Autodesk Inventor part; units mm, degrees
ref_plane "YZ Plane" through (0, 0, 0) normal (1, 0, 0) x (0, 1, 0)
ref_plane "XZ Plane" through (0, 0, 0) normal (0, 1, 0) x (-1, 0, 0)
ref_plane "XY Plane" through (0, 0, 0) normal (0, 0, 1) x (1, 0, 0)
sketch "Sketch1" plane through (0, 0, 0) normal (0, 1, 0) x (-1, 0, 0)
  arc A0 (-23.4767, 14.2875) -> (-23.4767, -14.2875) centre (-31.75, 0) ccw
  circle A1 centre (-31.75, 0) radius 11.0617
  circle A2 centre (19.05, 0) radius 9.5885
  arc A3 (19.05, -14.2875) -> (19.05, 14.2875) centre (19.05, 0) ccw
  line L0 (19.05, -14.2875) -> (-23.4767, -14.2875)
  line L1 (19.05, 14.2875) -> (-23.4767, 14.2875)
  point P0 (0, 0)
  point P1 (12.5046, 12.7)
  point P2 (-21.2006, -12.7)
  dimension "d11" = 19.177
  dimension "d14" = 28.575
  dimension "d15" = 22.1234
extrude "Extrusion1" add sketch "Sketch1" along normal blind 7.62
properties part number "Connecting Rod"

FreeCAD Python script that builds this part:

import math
import FreeCAD as App
import Part
import Sketcher

V = App.Vector
Q = App.Units.Quantity

doc = App.newDocument("Part")
params = doc.addObject("Spreadsheet::Sheet", "Params")
for row, (alias, value) in enumerate([
    ("sketch1_diameter", "0.871 in"),
    ("sketch1_diameter2", "0.755 in"),
    ("sketch1_radius", "0.5625 in"),
    ("sketch1_radius2", "0.65 in"),
    ("pad1_length", "0.3 in"),
], start=1):
    params.set(f"A{row}", alias)
    params.set(f"B{row}", "=" + value)
    params.setAlias(f"B{row}", alias)

body = doc.addObject("PartDesign::Body", "Body")

# Sketch on XZ plane
sketch1 = doc.addObject("Sketcher::SketchObject", "Sketch")
body.addObject(sketch1)
sketch1.AttachmentSupport = (doc.XZ_Plane, [""])
sketch1.MapMode = "FlatFace"
sketch1.addGeometry(Part.LineSegment(V(-19, 14, 0), V(23, 14, 0)), False)
sketch1.addGeometry(Part.ArcOfCircle(Part.Circle(V(32, 0, 0), V(0, 0, 1), 17), math.radians(-120), math.radians(120)), False)
sketch1.addGeometry(Part.LineSegment(V(23, -14, 0), V(-19, -14, 0)), False)
sketch1.addGeometry(Part.ArcOfCircle(Part.Circle(V(-19, 0, 0), V(0, 0, 1), 14), math.radians(90), math.radians(270)), False)
sketch1.addGeometry(Part.Circle(V(32, 0, 0), V(0, 0, 1), 11), False)
sketch1.addGeometry(Part.Circle(V(-19, 0, 0), V(0, 0, 1), 10), False)
sketch1.addConstraint(Sketcher.Constraint("Coincident", 0, 2, 1, 2))
sketch1.addConstraint(Sketcher.Constraint("Coincident", 1, 1, 2, 1))
sketch1.addConstraint(Sketcher.Constraint("Tangent", 2, 2, 3, 2))
sketch1.addConstraint(Sketcher.Constraint("Tangent", 3, 1, 0, 1))
sketch1.addConstraint(Sketcher.Constraint("Horizontal", 0))
sketch1.addConstraint(Sketcher.Constraint("Horizontal", 2))
sketch1.addConstraint(Sketcher.Constraint("Coincident", 4, 3, 1, 3))
sketch1.addConstraint(Sketcher.Constraint("Coincident", 5, 3, 3, 3))
sketch1.addConstraint(Sketcher.Constraint("Symmetric", 0, 2, 1, 1, -1))
sketch1.addConstraint(Sketcher.Constraint("Diameter", 4, Q("0.871 in")))
sketch1.addConstraint(Sketcher.Constraint("Diameter", 5, Q("0.755 in")))
sketch1.addConstraint(Sketcher.Constraint("Radius", 3, Q("0.5625 in")))
sketch1.addConstraint(Sketcher.Constraint("Radius", 1, Q("0.65 in")))
sketch1.addConstraint(Sketcher.Constraint("DistanceX", 3, 3, 1, 3, Q("2 in")))
sketch1.addConstraint(Sketcher.Constraint("DistanceX", -1, 1, 1, 3, Q("1.25 in")))
sketch1.setExpression("Constraints[9]", "Params.sketch1_diameter")
sketch1.setExpression("Constraints[10]", "Params.sketch1_diameter2")
sketch1.setExpression("Constraints[11]", "Params.sketch1_radius")
sketch1.setExpression("Constraints[12]", "Params.sketch1_radius2")
pad1 = doc.addObject("PartDesign::Pad", "Pad")
body.addObject(pad1)
pad1.Profile = sketch1
pad1.setExpression("Length", "Params.pad1_length")
pad1.Reversed = True

doc.recompute()
